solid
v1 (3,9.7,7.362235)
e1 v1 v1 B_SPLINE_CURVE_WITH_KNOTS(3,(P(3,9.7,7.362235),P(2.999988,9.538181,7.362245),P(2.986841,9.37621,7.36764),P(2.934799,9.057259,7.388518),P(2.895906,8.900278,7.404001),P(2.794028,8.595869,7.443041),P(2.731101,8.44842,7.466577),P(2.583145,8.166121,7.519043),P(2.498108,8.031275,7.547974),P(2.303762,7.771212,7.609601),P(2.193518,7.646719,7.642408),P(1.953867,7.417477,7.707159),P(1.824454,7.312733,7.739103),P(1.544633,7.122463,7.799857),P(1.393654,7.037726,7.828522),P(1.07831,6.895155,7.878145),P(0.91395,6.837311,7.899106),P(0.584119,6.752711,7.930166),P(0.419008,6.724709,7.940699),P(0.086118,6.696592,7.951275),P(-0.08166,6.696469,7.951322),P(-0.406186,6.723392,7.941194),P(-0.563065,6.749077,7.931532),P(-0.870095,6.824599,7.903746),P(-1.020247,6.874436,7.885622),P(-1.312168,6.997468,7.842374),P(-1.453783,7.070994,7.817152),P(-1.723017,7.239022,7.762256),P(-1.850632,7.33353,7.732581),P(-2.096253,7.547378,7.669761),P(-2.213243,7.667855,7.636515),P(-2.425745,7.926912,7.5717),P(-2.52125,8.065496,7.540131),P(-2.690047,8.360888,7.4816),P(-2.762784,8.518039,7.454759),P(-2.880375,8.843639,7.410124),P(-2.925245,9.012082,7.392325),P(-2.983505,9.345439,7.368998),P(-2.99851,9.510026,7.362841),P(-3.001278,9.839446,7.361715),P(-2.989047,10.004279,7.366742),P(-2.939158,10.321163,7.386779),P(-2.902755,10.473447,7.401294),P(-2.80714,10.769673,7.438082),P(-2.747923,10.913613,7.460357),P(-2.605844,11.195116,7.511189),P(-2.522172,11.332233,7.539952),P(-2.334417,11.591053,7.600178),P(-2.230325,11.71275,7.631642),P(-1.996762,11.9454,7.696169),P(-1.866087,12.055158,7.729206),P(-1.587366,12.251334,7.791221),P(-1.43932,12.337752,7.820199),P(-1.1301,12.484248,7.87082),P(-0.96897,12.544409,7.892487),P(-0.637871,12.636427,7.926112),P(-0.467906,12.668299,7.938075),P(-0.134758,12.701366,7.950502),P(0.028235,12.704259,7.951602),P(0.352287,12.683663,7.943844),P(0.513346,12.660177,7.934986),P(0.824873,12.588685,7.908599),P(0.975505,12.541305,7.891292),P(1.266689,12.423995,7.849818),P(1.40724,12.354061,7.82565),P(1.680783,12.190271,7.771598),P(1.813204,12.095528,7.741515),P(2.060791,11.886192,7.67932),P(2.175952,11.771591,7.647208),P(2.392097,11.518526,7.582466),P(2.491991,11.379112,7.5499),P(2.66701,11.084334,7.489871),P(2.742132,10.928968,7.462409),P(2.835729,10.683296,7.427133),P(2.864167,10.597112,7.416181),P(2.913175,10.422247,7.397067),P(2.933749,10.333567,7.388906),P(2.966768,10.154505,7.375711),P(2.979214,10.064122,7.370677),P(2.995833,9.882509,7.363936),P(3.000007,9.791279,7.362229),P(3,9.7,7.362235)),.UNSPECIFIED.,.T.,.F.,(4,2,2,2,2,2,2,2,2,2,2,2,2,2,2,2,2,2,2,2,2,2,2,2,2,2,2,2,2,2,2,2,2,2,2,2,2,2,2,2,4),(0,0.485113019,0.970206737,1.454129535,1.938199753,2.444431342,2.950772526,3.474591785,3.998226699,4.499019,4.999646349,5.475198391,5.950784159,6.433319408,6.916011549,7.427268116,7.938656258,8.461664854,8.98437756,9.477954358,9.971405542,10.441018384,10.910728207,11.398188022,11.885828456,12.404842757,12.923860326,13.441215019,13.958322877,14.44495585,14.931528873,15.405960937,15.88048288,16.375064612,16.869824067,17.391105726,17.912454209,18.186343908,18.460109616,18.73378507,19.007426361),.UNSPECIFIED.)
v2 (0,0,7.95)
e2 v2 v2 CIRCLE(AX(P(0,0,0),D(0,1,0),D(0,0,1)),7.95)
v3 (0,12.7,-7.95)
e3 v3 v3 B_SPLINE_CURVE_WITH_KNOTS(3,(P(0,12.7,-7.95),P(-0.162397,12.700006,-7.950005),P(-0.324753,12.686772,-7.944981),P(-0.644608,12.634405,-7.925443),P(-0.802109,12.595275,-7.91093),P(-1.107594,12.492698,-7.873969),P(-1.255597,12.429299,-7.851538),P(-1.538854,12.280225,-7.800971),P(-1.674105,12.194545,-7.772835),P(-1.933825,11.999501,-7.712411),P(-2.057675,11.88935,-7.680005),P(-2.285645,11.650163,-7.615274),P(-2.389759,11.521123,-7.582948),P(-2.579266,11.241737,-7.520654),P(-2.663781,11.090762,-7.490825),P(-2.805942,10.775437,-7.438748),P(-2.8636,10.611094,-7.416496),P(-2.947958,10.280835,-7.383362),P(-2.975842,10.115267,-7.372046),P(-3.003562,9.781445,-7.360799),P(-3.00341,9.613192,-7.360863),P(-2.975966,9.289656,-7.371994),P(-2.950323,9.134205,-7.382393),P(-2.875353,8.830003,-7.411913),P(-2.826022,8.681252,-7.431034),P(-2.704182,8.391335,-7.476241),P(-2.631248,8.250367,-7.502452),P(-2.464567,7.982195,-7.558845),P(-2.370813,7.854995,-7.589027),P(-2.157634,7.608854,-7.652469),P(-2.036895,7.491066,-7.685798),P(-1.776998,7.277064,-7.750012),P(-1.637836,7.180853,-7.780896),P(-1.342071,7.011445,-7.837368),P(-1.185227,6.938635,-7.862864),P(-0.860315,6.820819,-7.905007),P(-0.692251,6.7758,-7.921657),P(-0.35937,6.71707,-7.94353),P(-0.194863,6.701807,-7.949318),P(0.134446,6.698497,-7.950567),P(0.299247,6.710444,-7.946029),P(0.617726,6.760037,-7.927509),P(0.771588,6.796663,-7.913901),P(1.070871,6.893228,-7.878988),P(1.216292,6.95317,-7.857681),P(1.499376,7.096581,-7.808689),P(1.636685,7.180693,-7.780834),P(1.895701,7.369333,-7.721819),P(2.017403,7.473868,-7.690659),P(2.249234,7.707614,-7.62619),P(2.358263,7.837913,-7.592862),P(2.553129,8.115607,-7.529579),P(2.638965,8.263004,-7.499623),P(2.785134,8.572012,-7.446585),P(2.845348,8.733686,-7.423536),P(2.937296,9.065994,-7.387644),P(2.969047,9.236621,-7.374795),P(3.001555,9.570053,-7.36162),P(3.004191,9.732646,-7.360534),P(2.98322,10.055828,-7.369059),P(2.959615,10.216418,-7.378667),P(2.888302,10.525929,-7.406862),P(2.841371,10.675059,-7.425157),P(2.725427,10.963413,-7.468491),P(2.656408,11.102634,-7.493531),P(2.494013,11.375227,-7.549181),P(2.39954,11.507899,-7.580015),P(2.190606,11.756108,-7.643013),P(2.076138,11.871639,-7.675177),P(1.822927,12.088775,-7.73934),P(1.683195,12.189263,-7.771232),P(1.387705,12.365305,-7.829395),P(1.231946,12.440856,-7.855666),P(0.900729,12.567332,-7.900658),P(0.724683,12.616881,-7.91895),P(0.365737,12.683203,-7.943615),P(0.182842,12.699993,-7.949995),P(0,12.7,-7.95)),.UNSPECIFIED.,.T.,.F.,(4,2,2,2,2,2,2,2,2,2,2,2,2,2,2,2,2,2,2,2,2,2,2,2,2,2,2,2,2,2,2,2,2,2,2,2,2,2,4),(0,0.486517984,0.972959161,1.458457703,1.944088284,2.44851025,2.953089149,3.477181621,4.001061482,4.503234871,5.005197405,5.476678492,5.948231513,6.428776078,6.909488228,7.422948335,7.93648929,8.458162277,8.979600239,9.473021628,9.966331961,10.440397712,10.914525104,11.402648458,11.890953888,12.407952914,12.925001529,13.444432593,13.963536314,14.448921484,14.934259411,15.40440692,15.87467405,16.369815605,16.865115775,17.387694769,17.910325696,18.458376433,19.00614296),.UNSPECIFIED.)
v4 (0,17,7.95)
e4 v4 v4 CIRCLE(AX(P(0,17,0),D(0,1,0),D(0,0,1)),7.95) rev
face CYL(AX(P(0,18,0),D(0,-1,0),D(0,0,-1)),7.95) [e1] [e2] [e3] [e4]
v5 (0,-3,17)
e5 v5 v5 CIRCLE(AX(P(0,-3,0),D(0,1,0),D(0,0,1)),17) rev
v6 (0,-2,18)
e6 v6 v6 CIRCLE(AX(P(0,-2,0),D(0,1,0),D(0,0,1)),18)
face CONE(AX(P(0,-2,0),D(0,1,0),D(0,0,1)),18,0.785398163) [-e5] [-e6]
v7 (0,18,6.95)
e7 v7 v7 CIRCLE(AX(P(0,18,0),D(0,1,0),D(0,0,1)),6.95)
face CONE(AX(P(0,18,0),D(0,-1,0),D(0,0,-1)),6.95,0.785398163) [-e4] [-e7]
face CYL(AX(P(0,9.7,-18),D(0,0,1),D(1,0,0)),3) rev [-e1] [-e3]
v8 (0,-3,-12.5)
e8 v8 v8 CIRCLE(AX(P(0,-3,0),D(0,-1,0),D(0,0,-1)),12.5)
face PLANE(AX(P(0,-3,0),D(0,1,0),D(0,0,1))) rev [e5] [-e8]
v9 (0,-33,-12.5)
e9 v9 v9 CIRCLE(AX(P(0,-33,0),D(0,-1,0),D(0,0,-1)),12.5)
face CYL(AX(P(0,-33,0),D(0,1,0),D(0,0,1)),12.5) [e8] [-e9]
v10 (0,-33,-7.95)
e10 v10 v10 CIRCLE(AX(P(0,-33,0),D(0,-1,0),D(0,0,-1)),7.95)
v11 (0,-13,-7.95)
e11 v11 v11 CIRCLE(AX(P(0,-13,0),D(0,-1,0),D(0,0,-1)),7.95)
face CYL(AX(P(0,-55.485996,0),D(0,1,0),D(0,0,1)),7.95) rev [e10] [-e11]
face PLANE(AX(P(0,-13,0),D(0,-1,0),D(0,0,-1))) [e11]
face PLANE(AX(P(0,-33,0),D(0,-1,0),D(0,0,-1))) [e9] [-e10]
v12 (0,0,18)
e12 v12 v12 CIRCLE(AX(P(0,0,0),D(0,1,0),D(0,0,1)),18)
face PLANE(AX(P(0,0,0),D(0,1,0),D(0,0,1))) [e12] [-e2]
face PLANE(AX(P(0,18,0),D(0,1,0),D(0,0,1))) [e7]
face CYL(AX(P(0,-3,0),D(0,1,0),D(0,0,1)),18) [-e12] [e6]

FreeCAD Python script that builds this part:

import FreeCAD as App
import Part
import Sketcher

V = App.Vector
Q = App.Units.Quantity


def edges_at(feature, points):
    """Names of the edges that pass closest to the given points."""
    edges = feature.Shape.Edges
    near = lambda p: min(range(len(edges)), key=lambda i: edges[i].distToShape(Part.Vertex(*p))[0])
    return sorted({f"Edge{near(p) + 1}" for p in points})

doc = App.newDocument("Part")
body = doc.addObject("PartDesign::Body", "Body")

sketch1 = body.newObject("Sketcher::SketchObject", "Sketch")
sketch1.AttachmentSupport = (doc.getObject("XZ_Plane"), [""])
sketch1.MapMode = "FlatFace"
sketch1.addGeometry(Part.Circle(V(0, 0, 0), V(0, 0, 1), 8), False)
sketch1.addConstraint([
    Sketcher.Constraint("Coincident", 0, 3, -1, 1),
    Sketcher.Constraint("Diameter", 0, Q("15.9 mm")),
])
pad1 = body.newObject("PartDesign::Pad", "Pad")
pad1.Profile = sketch1
pad1.Length = 18
pad1.Reversed = True
doc.recompute()

chamfer = body.newObject("PartDesign::Chamfer", "Chamfer")
chamfer.Base = (pad1, edges_at(pad1, [(0, 18, -7.95)]))
chamfer.Size = 1

sketch2 = body.newObject("Sketcher::SketchObject", "Sketch001")
sketch2.AttachmentSupport = (doc.getObject("XZ_Plane"), [""])
sketch2.MapMode = "FlatFace"
sketch2.addGeometry(Part.Circle(V(0, 0, 0), V(0, 0, 1), 18), False)
sketch2.addConstraint([
    Sketcher.Constraint("Coincident", 0, 3, -1, 1),
    Sketcher.Constraint("Diameter", 0, Q("36 mm")),
])
pad2 = body.newObject("PartDesign::Pad", "Pad001")
pad2.Profile = sketch2
pad2.Length = 3
doc.recompute()

chamfer2 = body.newObject("PartDesign::Chamfer", "Chamfer001")
chamfer2.Base = (pad2, edges_at(pad2, [(0, -3, -18)]))
chamfer2.Size = 1

sketch3 = body.newObject("Sketcher::SketchObject", "Sketch002")
sketch3.AttachmentSupport = (doc.getObject("XZ_Plane"), [""])
sketch3.MapMode = "FlatFace"
sketch3.AttachmentOffset = App.Placement(V(0, 0, 3), App.Rotation())
sketch3.addGeometry(Part.Circle(V(0, 0, 0), V(0, 0, 1), 12), False)
sketch3.addConstraint([
    Sketcher.Constraint("Coincident", 0, 3, -1, 1),
    Sketcher.Constraint("Diameter", 0, Q("25 mm")),
])
pad3 = body.newObject("PartDesign::Pad", "Pad002")
pad3.Profile = sketch3
pad3.Length = 30

sketch4 = body.newObject("Sketcher::SketchObject", "Sketch003")
sketch4.AttachmentSupport = (doc.getObject("XY_Plane"), [""])
sketch4.MapMode = "FlatFace"
sketch4.addGeometry(Part.Circle(V(0, 9.7, 0), V(0, 0, 1), 3), False)
sketch4.addConstraint([
    Sketcher.Constraint("PointOnObject", 0, 3, -2),
    Sketcher.Constraint("Diameter", 0, Q("6 mm")),
    Sketcher.Constraint("DistanceY", -1, 1, 0, 3, Q("9.7 mm")),
])
pocket1 = body.newObject("PartDesign::Pocket", "Pocket")
pocket1.Profile = sketch4
pocket1.Type = "ThroughAll"
pocket1.Midplane = True

sketch5 = body.newObject("Sketcher::SketchObject", "Sketch004")
sketch5.AttachmentSupport = (doc.getObject("XZ_Plane"), [""])
sketch5.MapMode = "FlatFace"
sketch5.AttachmentOffset = App.Placement(V(0, 0, 33), App.Rotation())
sketch5.addGeometry(Part.Circle(V(0, 0, 0), V(0, 0, 1), 8), False)
sketch5.addConstraint([
    Sketcher.Constraint("Coincident", 0, 3, -1, 1),
    Sketcher.Constraint("Diameter", 0, Q("15.9 mm")),
])
pocket2 = body.newObject("PartDesign::Pocket", "Pocket001")
pocket2.Profile = sketch5
pocket2.Length = 20

doc.recompute()
